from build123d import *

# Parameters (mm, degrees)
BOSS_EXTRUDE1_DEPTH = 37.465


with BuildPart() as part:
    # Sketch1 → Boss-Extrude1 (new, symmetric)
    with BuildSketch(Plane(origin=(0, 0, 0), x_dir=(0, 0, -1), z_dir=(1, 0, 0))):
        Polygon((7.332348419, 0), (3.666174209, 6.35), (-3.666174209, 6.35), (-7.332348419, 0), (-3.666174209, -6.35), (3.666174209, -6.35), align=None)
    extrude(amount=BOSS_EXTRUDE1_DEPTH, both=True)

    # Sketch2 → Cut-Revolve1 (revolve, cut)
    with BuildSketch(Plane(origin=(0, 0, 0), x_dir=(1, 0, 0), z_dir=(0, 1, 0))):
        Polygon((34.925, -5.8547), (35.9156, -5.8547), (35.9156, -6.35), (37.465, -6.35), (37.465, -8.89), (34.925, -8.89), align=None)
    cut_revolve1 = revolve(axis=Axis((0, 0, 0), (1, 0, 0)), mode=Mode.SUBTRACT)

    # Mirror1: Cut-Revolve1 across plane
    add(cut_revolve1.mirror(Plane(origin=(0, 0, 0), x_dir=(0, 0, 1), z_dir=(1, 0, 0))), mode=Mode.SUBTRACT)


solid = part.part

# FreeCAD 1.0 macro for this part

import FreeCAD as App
import Part
import Sketcher

V = App.Vector
Q = App.Units.Quantity


def add_polygon(sketch, points):
    """Adds a closed chain of lines whose ends are joined by coincident constraints."""
    first, n = sketch.GeometryCount, len(points)
    for a, b in zip(points, points[1:] + points[:1]):
        sketch.addGeometry(Part.LineSegment(App.Vector(*a, 0), App.Vector(*b, 0)), False)
    for i in range(n):
        sketch.addConstraint(Sketcher.Constraint("Coincident", first + i, 2, first + (i + 1) % n, 1))

doc = App.newDocument("Part")
body = doc.addObject("PartDesign::Body", "Body")

# Sketch on YZ plane
sketch1 = doc.addObject("Sketcher::SketchObject", "Sketch")
body.addObject(sketch1)
sketch1.AttachmentSupport = (doc.YZ_Plane, [""])
sketch1.MapMode = "FlatFace"
add_polygon(sketch1, [(0, -7), (6, -4), (6, 4), (0, 7), (-6, 4), (-6, -4)])  # lines 0-5
sketch1.addConstraint([
    Sketcher.Constraint("Vertical", 1),
    Sketcher.Constraint("Vertical", 4),
    Sketcher.Constraint("Symmetric", 0, 2, 3, 2, -1, 1),
    Sketcher.Constraint("Symmetric", 2, 2, 5, 2, -1, 1),
    Sketcher.Constraint("PointOnObject", 2, 2, -2),
    Sketcher.Constraint("Parallel", 2, 5),
    Sketcher.Constraint("Horizontal", 1, 2, 3, 2),
    Sketcher.Constraint("Angle", 0, Q("30 deg")),
    Sketcher.Constraint("DistanceX", 3, 2, 1, 2, Q("0.5 in")),
    Sketcher.Constraint("DistanceY", 1, 1, 1, 2, 7.332348),
])
pad1 = doc.addObject("PartDesign::Pad", "Pad")
body.addObject(pad1)
pad1.Profile = sketch1
pad1.Length = Q("2.95 in")
pad1.Midplane = True

# Sketch on XZ plane
sketch2 = doc.addObject("Sketcher::SketchObject", "Sketch001")
body.addObject(sketch2)
sketch2.AttachmentSupport = (doc.XZ_Plane, [""])
sketch2.MapMode = "FlatFace"
add_polygon(sketch2, [(35.92, 5.85), (34.92, 5.85), (34.92, 8.89), (37.47, 8.89), (37.47, 6.35), (35.92, 6.35)])  # lines 0-5
sketch2.addConstraint([
    Sketcher.Constraint("Horizontal", 0),
    Sketcher.Constraint("Vertical", 1),
    Sketcher.Constraint("Horizontal", 2),
    Sketcher.Constraint("Vertical", 3),
    Sketcher.Constraint("Horizontal", 4),
    Sketcher.Constraint("Vertical", 5),
    Sketcher.Constraint("Equal", 2, 3),
    Sketcher.Constraint("DistanceX", 2, 1, 2, 2, Q("0.1 in")),
    Sketcher.Constraint("DistanceX", 0, 2, 0, 1, Q("0.039 in")),
    Sketcher.Constraint("DistanceY", -1, 1, 1, 2, Q("0.35 in")),
    Sketcher.Constraint("DistanceY", 1, 1, 1, 2, Q("0.1195 in")),
    Sketcher.Constraint("DistanceX", -1, 1, 0, 2, Q("1.375 in")),
])
groove = doc.addObject("PartDesign::Groove", "Groove")
body.addObject(groove)
groove.Profile = sketch2
groove.ReferenceAxis = (sketch2, ["H_Axis"])
groove.Angle = 360
doc.recompute()

mirrored = doc.addObject("PartDesign::Mirrored", "Mirrored")
body.addObject(mirrored)
mirrored.Originals = [groove]
mirrored.MirrorPlane = (doc.YZ_Plane, [""])
body.Tip = mirrored

doc.recompute()
